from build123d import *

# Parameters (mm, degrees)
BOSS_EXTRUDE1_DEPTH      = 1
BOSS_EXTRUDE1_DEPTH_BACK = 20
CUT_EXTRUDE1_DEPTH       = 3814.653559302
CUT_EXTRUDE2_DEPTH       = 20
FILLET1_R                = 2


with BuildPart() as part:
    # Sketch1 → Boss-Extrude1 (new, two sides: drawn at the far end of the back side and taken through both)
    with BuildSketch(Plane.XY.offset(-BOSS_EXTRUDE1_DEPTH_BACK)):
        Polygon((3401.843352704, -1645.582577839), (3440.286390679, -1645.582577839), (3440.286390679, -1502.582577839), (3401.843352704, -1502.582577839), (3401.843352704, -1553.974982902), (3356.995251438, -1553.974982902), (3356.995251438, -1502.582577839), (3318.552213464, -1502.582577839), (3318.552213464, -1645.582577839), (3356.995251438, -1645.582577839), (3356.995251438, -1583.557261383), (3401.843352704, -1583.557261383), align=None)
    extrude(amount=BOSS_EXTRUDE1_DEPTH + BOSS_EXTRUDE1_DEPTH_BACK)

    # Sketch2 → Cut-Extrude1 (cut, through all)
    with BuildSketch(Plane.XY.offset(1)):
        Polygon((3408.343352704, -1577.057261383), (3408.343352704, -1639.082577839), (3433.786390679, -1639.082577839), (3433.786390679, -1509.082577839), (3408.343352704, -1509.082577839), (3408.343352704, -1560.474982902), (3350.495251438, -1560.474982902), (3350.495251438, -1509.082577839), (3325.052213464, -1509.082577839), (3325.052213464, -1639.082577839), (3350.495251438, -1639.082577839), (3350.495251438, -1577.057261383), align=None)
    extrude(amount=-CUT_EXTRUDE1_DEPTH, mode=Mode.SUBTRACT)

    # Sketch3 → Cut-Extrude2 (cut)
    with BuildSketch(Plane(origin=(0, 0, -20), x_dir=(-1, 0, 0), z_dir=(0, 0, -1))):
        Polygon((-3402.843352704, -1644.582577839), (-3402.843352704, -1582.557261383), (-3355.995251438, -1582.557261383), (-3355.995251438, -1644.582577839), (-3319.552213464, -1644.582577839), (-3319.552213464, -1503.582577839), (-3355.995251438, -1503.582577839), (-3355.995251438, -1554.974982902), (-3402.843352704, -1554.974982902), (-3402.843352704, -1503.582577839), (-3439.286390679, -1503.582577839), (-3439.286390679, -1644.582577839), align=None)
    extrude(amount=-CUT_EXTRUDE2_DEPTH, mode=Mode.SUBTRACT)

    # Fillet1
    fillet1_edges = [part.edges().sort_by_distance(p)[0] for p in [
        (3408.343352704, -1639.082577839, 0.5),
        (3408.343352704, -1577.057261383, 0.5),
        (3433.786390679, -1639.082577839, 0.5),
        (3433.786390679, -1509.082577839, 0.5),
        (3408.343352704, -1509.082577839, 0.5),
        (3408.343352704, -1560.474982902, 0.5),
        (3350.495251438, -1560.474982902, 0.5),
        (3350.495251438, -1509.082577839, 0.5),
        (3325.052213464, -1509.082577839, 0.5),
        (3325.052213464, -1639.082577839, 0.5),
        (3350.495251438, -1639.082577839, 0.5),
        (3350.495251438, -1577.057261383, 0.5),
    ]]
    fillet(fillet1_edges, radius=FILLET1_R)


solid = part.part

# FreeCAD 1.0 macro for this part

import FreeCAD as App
import Part
import Sketcher

V = App.Vector


def edges_at(feature, points):
    """Names of the edges that pass closest to the given points."""
    edges = feature.Shape.Edges
    near = lambda p: min(range(len(edges)), key=lambda i: edges[i].distToShape(Part.Vertex(*p))[0])
    return sorted({f"Edge{near(p) + 1}" for p in points})

doc = App.newDocument("Part")
body = doc.addObject("PartDesign::Body", "Body")

# Sketch on XY plane
sketch1 = body.newObject("Sketcher::SketchObject", "Sketch")
sketch1.AttachmentSupport = (doc.getObject("XY_Plane"), [""])
sketch1.MapMode = "FlatFace"
sketch1.addGeometry(Part.LineSegment(V(3401.843353, -1645.582578, 0), V(3440.286391, -1645.582578, 0)), False)
sketch1.addGeometry(Part.LineSegment(V(3440.286391, -1645.582578, 0), V(3440.286391, -1502.582578, 0)), False)
sketch1.addGeometry(Part.LineSegment(V(3440.286391, -1502.582578, 0), V(3401.843353, -1502.582578, 0)), False)
sketch1.addGeometry(Part.LineSegment(V(3401.843353, -1502.582578, 0), V(3401.843353, -1553.974983, 0)), False)
sketch1.addGeometry(Part.LineSegment(V(3401.843353, -1553.974983, 0), V(3356.995251, -1553.974983, 0)), False)
sketch1.addGeometry(Part.LineSegment(V(3356.995251, -1553.974983, 0), V(3356.995251, -1502.582578, 0)), False)
sketch1.addGeometry(Part.LineSegment(V(3356.995251, -1502.582578, 0), V(3318.552213, -1502.582578, 0)), False)
sketch1.addGeometry(Part.LineSegment(V(3318.552213, -1502.582578, 0), V(3318.552213, -1645.582578, 0)), False)
sketch1.addGeometry(Part.LineSegment(V(3318.552213, -1645.582578, 0), V(3356.995251, -1645.582578, 0)), False)
sketch1.addGeometry(Part.LineSegment(V(3356.995251, -1645.582578, 0), V(3356.995251, -1583.557261, 0)), False)
sketch1.addGeometry(Part.LineSegment(V(3356.995251, -1583.557261, 0), V(3401.843353, -1583.557261, 0)), False)
sketch1.addGeometry(Part.LineSegment(V(3401.843353, -1583.557261, 0), V(3401.843353, -1645.582578, 0)), False)
sketch1.addConstraint(Sketcher.Constraint("Coincident", 0, 2, 1, 1))
sketch1.addConstraint(Sketcher.Constraint("Coincident", 1, 2, 2, 1))
sketch1.addConstraint(Sketcher.Constraint("Coincident", 2, 2, 3, 1))
sketch1.addConstraint(Sketcher.Constraint("Coincident", 3, 2, 4, 1))
sketch1.addConstraint(Sketcher.Constraint("Coincident", 4, 2, 5, 1))
sketch1.addConstraint(Sketcher.Constraint("Coincident", 5, 2, 6, 1))
sketch1.addConstraint(Sketcher.Constraint("Coincident", 6, 2, 7, 1))
sketch1.addConstraint(Sketcher.Constraint("Coincident", 7, 2, 8, 1))
sketch1.addConstraint(Sketcher.Constraint("Coincident", 8, 2, 9, 1))
sketch1.addConstraint(Sketcher.Constraint("Coincident", 9, 2, 10, 1))
sketch1.addConstraint(Sketcher.Constraint("Coincident", 10, 2, 11, 1))
sketch1.addConstraint(Sketcher.Constraint("Coincident", 11, 2, 0, 1))
sketch1.addConstraint(Sketcher.Constraint("Horizontal", 0))
sketch1.addConstraint(Sketcher.Constraint("Vertical", 1))
sketch1.addConstraint(Sketcher.Constraint("Horizontal", 2))
sketch1.addConstraint(Sketcher.Constraint("Vertical", 3))
sketch1.addConstraint(Sketcher.Constraint("Horizontal", 4))
sketch1.addConstraint(Sketcher.Constraint("Vertical", 5))
sketch1.addConstraint(Sketcher.Constraint("Horizontal", 6))
sketch1.addConstraint(Sketcher.Constraint("Vertical", 7))
sketch1.addConstraint(Sketcher.Constraint("Horizontal", 8))
sketch1.addConstraint(Sketcher.Constraint("Vertical", 9))
sketch1.addConstraint(Sketcher.Constraint("Horizontal", 10))
sketch1.addConstraint(Sketcher.Constraint("Vertical", 11))
sketch1.addConstraint(Sketcher.Constraint("Horizontal", 2, 2, 5, 2))
sketch1.addConstraint(Sketcher.Constraint("Horizontal", 0, 2, 7, 2))
sketch1.addConstraint(Sketcher.Constraint("Vertical", 5, 2, 8, 2))
sketch1.addConstraint(Sketcher.Constraint("Vertical", 3, 2, 10, 2))
sketch1.addConstraint(Sketcher.Constraint("Equal", 2, 6))
sketch1.addConstraint(Sketcher.Constraint("DistanceY", 1, 1, 1, 2, 143.0))
sketch1.addConstraint(Sketcher.Constraint("DistanceX", 4, 2, 4, 1, 44.848101))
sketch1.addConstraint(Sketcher.Constraint("DistanceX", 0, 1, 0, 2, 38.443038))
sketch1.addConstraint(Sketcher.Constraint("DistanceY", 3, 2, 3, 1, 51.392405))
sketch1.addConstraint(Sketcher.Constraint("DistanceY", 9, 1, 9, 2, 62.025316))
sketch1.addConstraint(Sketcher.Constraint("DistanceX", -1, 1, 0, 2, 3440.286391))
sketch1.addConstraint(Sketcher.Constraint("DistanceY", 9, 2, -1, 1, 1583.557261))
pad1 = body.newObject("PartDesign::Pad", "Pad")
pad1.Profile = sketch1
pad1.Type = "TwoLengths"
pad1.Length = 1
pad1.Length2 = 20

# Sketch on XY plane
sketch2 = body.newObject("Sketcher::SketchObject", "Sketch001")
sketch2.AttachmentSupport = (doc.getObject("XY_Plane"), [""])
sketch2.MapMode = "FlatFace"
sketch2.AttachmentOffset = App.Placement(V(0, 0, 1), App.Rotation())
sketch2.addGeometry(Part.LineSegment(V(3408.343353, -1577.057261, 0), V(3408.343353, -1639.082578, 0)), False)
sketch2.addGeometry(Part.LineSegment(V(3408.343353, -1639.082578, 0), V(3433.786391, -1639.082578, 0)), False)
sketch2.addGeometry(Part.LineSegment(V(3433.786391, -1639.082578, 0), V(3433.786391, -1509.082578, 0)), False)
sketch2.addGeometry(Part.LineSegment(V(3433.786391, -1509.082578, 0), V(3408.343353, -1509.082578, 0)), False)
sketch2.addGeometry(Part.LineSegment(V(3408.343353, -1509.082578, 0), V(3408.343353, -1560.474983, 0)), False)
sketch2.addGeometry(Part.LineSegment(V(3408.343353, -1560.474983, 0), V(3350.495251, -1560.474983, 0)), False)
sketch2.addGeometry(Part.LineSegment(V(3350.495251, -1560.474983, 0), V(3350.495251, -1509.082578, 0)), False)
sketch2.addGeometry(Part.LineSegment(V(3350.495251, -1509.082578, 0), V(3325.052213, -1509.082578, 0)), False)
sketch2.addGeometry(Part.LineSegment(V(3325.052213, -1509.082578, 0), V(3325.052213, -1639.082578, 0)), False)
sketch2.addGeometry(Part.LineSegment(V(3325.052213, -1639.082578, 0), V(3350.495251, -1639.082578, 0)), False)
sketch2.addGeometry(Part.LineSegment(V(3350.495251, -1639.082578, 0), V(3350.495251, -1577.057261, 0)), False)
sketch2.addGeometry(Part.LineSegment(V(3350.495251, -1577.057261, 0), V(3408.343353, -1577.057261, 0)), False)
sketch2.addConstraint(Sketcher.Constraint("Coincident", 0, 2, 1, 1))
sketch2.addConstraint(Sketcher.Constraint("Coincident", 1, 2, 2, 1))
sketch2.addConstraint(Sketcher.Constraint("Coincident", 2, 2, 3, 1))
sketch2.addConstraint(Sketcher.Constraint("Coincident", 3, 2, 4, 1))
sketch2.addConstraint(Sketcher.Constraint("Coincident", 4, 2, 5, 1))
sketch2.addConstraint(Sketcher.Constraint("Coincident", 5, 2, 6, 1))
sketch2.addConstraint(Sketcher.Constraint("Coincident", 6, 2, 7, 1))
sketch2.addConstraint(Sketcher.Constraint("Coincident", 7, 2, 8, 1))
sketch2.addConstraint(Sketcher.Constraint("Coincident", 8, 2, 9, 1))
sketch2.addConstraint(Sketcher.Constraint("Coincident", 9, 2, 10, 1))
sketch2.addConstraint(Sketcher.Constraint("Coincident", 10, 2, 11, 1))
sketch2.addConstraint(Sketcher.Constraint("Coincident", 11, 2, 0, 1))
sketch2.addConstraint(Sketcher.Constraint("Vertical", 0))
sketch2.addConstraint(Sketcher.Constraint("Horizontal", 1))
sketch2.addConstraint(Sketcher.Constraint("Vertical", 2))
sketch2.addConstraint(Sketcher.Constraint("Horizontal", 3))
sketch2.addConstraint(Sketcher.Constraint("Vertical", 4))
sketch2.addConstraint(Sketcher.Constraint("Horizontal", 5))
sketch2.addConstraint(Sketcher.Constraint("Vertical", 6))
sketch2.addConstraint(Sketcher.Constraint("Horizontal", 7))
sketch2.addConstraint(Sketcher.Constraint("Vertical", 8))
sketch2.addConstraint(Sketcher.Constraint("Horizontal", 9))
sketch2.addConstraint(Sketcher.Constraint("Vertical", 10))
sketch2.addConstraint(Sketcher.Constraint("Horizontal", 11))
sketch2.addConstraint(Sketcher.Constraint("Horizontal", 3, 2, 6, 2))
sketch2.addConstraint(Sketcher.Constraint("Horizontal", 1, 2, 8, 2))
sketch2.addConstraint(Sketcher.Constraint("Vertical", 0, 2, 3, 2))
sketch2.addConstraint(Sketcher.Constraint("Vertical", 6, 2, 9, 2))
sketch2.addConstraint(Sketcher.Constraint("Equal", 3, 7))
sketch2.addConstraint(Sketcher.Constraint("DistanceY", 2, 1, 2, 2, 130.0))
sketch2.addConstraint(Sketcher.Constraint("DistanceX", 5, 2, 5, 1, 57.848101))
sketch2.addConstraint(Sketcher.Constraint("DistanceX", 1, 1, 1, 2, 25.443038))
sketch2.addConstraint(Sketcher.Constraint("DistanceY", 0, 2, 0, 1, 62.025316))
sketch2.addConstraint(Sketcher.Constraint("DistanceY", 4, 2, 4, 1, 51.392405))
sketch2.addConstraint(Sketcher.Constraint("DistanceX", -1, 1, 1, 2, 3433.786391))
sketch2.addConstraint(Sketcher.Constraint("DistanceY", 10, 2, -1, 1, 1577.057261))
pocket1 = body.newObject("PartDesign::Pocket", "Pocket")
pocket1.Profile = sketch2
pocket1.Type = "ThroughAll"

# Sketch on XY plane
sketch3 = body.newObject("Sketcher::SketchObject", "Sketch002")
sketch3.AttachmentSupport = (doc.getObject("XY_Plane"), [""])
sketch3.MapMode = "FlatFace"
sketch3.AttachmentOffset = App.Placement(V(0, 0, -20), App.Rotation())
sketch3.addGeometry(Part.LineSegment(V(3402.843353, -1644.582578, 0), V(3402.843353, -1582.557261, 0)), False)
sketch3.addGeometry(Part.LineSegment(V(3402.843353, -1582.557261, 0), V(3355.995251, -1582.557261, 0)), False)
sketch3.addGeometry(Part.LineSegment(V(3355.995251, -1582.557261, 0), V(3355.995251, -1644.582578, 0)), False)
sketch3.addGeometry(Part.LineSegment(V(3355.995251, -1644.582578, 0), V(3319.552213, -1644.582578, 0)), False)
sketch3.addGeometry(Part.LineSegment(V(3319.552213, -1644.582578, 0), V(3319.552213, -1503.582578, 0)), False)
sketch3.addGeometry(Part.LineSegment(V(3319.552213, -1503.582578, 0), V(3355.995251, -1503.582578, 0)), False)
sketch3.addGeometry(Part.LineSegment(V(3355.995251, -1503.582578, 0), V(3355.995251, -1554.974983, 0)), False)
sketch3.addGeometry(Part.LineSegment(V(3355.995251, -1554.974983, 0), V(3402.843353, -1554.974983, 0)), False)
sketch3.addGeometry(Part.LineSegment(V(3402.843353, -1554.974983, 0), V(3402.843353, -1503.582578, 0)), False)
sketch3.addGeometry(Part.LineSegment(V(3402.843353, -1503.582578, 0), V(3439.286391, -1503.582578, 0)), False)
sketch3.addGeometry(Part.LineSegment(V(3439.286391, -1503.582578, 0), V(3439.286391, -1644.582578, 0)), False)
sketch3.addGeometry(Part.LineSegment(V(3439.286391, -1644.582578, 0), V(3402.843353, -1644.582578, 0)), False)
sketch3.addConstraint(Sketcher.Constraint("Coincident", 0, 2, 1, 1))
sketch3.addConstraint(Sketcher.Constraint("Coincident", 1, 2, 2, 1))
sketch3.addConstraint(Sketcher.Constraint("Coincident", 2, 2, 3, 1))
sketch3.addConstraint(Sketcher.Constraint("Coincident", 3, 2, 4, 1))
sketch3.addConstraint(Sketcher.Constraint("Coincident", 4, 2, 5, 1))
sketch3.addConstraint(Sketcher.Constraint("Coincident", 5, 2, 6, 1))
sketch3.addConstraint(Sketcher.Constraint("Coincident", 6, 2, 7, 1))
sketch3.addConstraint(Sketcher.Constraint("Coincident", 7, 2, 8, 1))
sketch3.addConstraint(Sketcher.Constraint("Coincident", 8, 2, 9, 1))
sketch3.addConstraint(Sketcher.Constraint("Coincident", 9, 2, 10, 1))
sketch3.addConstraint(Sketcher.Constraint("Coincident", 10, 2, 11, 1))
sketch3.addConstraint(Sketcher.Constraint("Coincident", 11, 2, 0, 1))
sketch3.addConstraint(Sketcher.Constraint("Vertical", 0))
sketch3.addConstraint(Sketcher.Constraint("Horizontal", 1))
sketch3.addConstraint(Sketcher.Constraint("Vertical", 2))
sketch3.addConstraint(Sketcher.Constraint("Horizontal", 3))
sketch3.addConstraint(Sketcher.Constraint("Vertical", 4))
sketch3.addConstraint(Sketcher.Constraint("Horizontal", 5))
sketch3.addConstraint(Sketcher.Constraint("Vertical", 6))
sketch3.addConstraint(Sketcher.Constraint("Horizontal", 7))
sketch3.addConstraint(Sketcher.Constraint("Vertical", 8))
sketch3.addConstraint(Sketcher.Constraint("Horizontal", 9))
sketch3.addConstraint(Sketcher.Constraint("Vertical", 10))
sketch3.addConstraint(Sketcher.Constraint("Horizontal", 11))
sketch3.addConstraint(Sketcher.Constraint("Horizontal", 5, 2, 8, 2))
sketch3.addConstraint(Sketcher.Constraint("Horizontal", 3, 2, 10, 2))
sketch3.addConstraint(Sketcher.Constraint("Vertical", 2, 2, 5, 2))
sketch3.addConstraint(Sketcher.Constraint("Vertical", 0, 2, 7, 2))
sketch3.addConstraint(Sketcher.Constraint("Equal", 5, 9))
sketch3.addConstraint(Sketcher.Constraint("DistanceY", 4, 1, 4, 2, 141.0))
sketch3.addConstraint(Sketcher.Constraint("DistanceX", 1, 2, 1, 1, 46.848101))
sketch3.addConstraint(Sketcher.Constraint("DistanceX", 3, 2, 3, 1, 36.443038))
sketch3.addConstraint(Sketcher.Constraint("DistanceY", 0, 1, 0, 2, 62.025316))
sketch3.addConstraint(Sketcher.Constraint("DistanceY", 6, 2, 6, 1, 51.392405))
sketch3.addConstraint(Sketcher.Constraint("DistanceY", 0, 2, -1, 1, 1582.557261))
sketch3.addConstraint(Sketcher.Constraint("DistanceX", -1, 1, 1, 2, 3355.995251))
pocket2 = body.newObject("PartDesign::Pocket", "Pocket001")
pocket2.Profile = sketch3
pocket2.Length = 20
pocket2.Reversed = True
doc.recompute()

fillet = body.newObject("PartDesign::Fillet", "Fillet")
fillet.Base = (pocket2, edges_at(pocket2, [
    (3408.343, -1639.083, 0.5),
    (3408.343, -1577.057, 0.5),
    (3433.786, -1639.083, 0.5),
    (3433.786, -1509.083, 0.5),
    (3408.343, -1509.083, 0.5),
    (3408.343, -1560.475, 0.5),
    (3350.495, -1560.475, 0.5),
    (3350.495, -1509.083, 0.5),
    (3325.052, -1509.083, 0.5),
    (3325.052, -1639.083, 0.5),
    (3350.495, -1639.083, 0.5),
    (3350.495, -1577.057, 0.5),
]))
fillet.Radius = 2

doc.recompute()
